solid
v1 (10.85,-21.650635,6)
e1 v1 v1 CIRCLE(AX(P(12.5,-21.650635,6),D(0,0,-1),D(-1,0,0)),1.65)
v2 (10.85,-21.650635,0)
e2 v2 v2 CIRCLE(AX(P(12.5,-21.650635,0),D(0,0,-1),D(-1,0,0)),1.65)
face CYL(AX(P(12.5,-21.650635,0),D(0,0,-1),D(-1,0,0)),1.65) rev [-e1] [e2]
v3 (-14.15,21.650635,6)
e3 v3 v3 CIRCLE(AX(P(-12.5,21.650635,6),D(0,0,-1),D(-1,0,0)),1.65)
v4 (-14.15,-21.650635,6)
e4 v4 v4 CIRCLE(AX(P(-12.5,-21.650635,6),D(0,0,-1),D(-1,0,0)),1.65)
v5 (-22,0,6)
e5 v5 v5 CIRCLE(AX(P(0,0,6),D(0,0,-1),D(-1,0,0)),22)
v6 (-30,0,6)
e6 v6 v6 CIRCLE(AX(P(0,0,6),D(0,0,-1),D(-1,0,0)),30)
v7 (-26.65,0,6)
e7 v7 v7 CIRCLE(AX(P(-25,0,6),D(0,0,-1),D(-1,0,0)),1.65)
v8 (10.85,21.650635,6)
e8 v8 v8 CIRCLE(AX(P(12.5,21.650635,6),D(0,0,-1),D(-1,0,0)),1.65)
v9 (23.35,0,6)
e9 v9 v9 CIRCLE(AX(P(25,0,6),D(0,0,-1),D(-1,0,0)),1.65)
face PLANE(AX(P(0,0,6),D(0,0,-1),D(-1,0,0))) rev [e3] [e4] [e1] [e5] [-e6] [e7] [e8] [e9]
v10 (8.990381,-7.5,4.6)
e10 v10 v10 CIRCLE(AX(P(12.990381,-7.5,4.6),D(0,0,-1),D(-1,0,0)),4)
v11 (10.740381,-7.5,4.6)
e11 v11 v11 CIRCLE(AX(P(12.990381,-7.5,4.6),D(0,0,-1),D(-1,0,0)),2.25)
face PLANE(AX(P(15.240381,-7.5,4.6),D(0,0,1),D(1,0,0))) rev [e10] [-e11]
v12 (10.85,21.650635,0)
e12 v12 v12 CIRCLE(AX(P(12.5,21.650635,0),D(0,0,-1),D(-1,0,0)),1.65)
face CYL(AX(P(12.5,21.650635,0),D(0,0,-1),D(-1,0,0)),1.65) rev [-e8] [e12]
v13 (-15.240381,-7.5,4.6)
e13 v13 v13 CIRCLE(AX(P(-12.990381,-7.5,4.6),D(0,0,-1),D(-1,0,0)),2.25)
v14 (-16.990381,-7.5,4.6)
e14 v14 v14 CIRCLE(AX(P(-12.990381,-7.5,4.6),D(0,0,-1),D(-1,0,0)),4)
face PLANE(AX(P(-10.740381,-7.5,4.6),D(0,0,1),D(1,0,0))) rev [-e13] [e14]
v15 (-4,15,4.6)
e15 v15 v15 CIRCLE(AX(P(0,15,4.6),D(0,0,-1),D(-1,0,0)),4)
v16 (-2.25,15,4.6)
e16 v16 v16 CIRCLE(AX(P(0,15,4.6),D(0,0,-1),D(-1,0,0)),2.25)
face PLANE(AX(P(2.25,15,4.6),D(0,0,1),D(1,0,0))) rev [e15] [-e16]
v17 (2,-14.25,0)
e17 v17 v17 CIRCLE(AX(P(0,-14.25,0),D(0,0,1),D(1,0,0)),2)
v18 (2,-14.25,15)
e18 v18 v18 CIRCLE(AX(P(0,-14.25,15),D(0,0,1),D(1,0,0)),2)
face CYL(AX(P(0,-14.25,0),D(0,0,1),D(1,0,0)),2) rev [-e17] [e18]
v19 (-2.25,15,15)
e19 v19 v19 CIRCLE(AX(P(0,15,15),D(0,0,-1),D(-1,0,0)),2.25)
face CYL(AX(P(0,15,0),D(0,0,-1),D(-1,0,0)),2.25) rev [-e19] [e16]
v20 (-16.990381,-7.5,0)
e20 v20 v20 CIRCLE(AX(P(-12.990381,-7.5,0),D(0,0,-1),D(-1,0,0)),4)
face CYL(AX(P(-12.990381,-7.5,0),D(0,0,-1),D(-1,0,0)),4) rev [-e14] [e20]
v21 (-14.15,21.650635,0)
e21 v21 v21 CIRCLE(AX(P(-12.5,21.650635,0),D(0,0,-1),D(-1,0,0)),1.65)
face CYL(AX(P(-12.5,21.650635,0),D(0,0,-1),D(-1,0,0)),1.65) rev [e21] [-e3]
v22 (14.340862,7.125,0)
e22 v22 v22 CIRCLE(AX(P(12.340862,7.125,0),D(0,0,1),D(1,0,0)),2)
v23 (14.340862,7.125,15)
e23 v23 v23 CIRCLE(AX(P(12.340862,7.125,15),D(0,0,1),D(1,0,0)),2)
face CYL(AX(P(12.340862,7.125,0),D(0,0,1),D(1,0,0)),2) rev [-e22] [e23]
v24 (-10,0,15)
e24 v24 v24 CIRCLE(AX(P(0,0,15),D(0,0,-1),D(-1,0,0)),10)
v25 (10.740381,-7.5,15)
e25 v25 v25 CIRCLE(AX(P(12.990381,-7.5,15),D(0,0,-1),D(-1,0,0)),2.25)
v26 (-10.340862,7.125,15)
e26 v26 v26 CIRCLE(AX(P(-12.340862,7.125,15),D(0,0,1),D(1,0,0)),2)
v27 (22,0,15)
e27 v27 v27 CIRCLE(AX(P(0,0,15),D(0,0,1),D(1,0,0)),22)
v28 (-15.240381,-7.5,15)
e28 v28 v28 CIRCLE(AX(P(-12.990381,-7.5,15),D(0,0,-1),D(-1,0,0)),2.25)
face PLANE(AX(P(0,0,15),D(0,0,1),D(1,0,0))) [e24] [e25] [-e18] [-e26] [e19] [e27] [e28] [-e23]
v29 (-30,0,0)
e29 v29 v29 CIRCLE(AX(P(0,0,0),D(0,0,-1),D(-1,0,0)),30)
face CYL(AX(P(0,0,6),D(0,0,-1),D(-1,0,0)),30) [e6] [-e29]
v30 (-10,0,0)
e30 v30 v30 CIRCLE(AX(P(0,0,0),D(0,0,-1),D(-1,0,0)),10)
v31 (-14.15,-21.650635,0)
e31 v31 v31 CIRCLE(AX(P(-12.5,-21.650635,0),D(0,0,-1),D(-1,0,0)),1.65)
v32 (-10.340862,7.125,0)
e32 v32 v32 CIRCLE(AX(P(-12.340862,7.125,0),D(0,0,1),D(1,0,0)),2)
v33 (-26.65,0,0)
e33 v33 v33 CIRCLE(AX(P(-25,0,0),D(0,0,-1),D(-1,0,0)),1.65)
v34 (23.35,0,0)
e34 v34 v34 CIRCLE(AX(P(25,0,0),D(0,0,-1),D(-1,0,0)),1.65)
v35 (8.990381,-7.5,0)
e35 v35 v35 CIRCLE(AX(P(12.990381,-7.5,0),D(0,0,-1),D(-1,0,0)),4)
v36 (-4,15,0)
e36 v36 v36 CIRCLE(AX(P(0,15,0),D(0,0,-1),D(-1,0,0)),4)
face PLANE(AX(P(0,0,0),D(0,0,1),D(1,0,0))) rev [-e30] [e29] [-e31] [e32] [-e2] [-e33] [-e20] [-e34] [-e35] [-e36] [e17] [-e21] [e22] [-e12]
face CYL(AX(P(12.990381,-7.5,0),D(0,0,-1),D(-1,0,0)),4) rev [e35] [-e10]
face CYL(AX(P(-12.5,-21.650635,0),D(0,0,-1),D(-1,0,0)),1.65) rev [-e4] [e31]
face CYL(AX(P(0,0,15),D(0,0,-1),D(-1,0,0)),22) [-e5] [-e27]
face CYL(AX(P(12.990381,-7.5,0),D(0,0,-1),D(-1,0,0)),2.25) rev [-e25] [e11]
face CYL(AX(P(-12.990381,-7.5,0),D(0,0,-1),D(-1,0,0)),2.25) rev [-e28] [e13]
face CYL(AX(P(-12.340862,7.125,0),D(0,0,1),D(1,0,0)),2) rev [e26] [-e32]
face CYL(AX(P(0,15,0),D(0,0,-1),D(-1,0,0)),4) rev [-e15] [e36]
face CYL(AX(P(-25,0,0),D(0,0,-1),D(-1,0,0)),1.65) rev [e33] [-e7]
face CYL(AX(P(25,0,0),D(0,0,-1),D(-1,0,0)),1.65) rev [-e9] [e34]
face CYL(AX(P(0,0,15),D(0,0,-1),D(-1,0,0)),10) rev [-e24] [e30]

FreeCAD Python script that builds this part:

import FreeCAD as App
import Part
import Sketcher
from FreeCAD import Vector

doc = App.newDocument("Part")
body = doc.addObject("PartDesign::Body", "Body")

# Sketch on XY plane
sketch1 = body.newObject("Sketcher::SketchObject", "Sketch")
sketch1.AttachmentSupport = (doc.getObject("XY_Plane"), [""])
sketch1.MapMode = "FlatFace"
sketch1.addGeometry(Part.Circle(Vector(0, 0, 0), Vector(0, 0, 1), 22), False)
sketch1.addConstraint([
    Sketcher.Constraint("Coincident", 0, 3, -1, 1),
    Sketcher.Constraint("Diameter", 0, 44.0),
])
pad1 = body.newObject("PartDesign::Pad", "Pad")
pad1.Profile = sketch1
pad1.Length = 15

# Sketch on XY plane
sketch2 = body.newObject("Sketcher::SketchObject", "Sketch001")
sketch2.AttachmentSupport = (doc.getObject("XY_Plane"), [""])
sketch2.MapMode = "FlatFace"
sketch2.addGeometry(Part.Circle(Vector(0, 0, 0), Vector(0, 0, 1), 30), False)
sketch2.addConstraint([
    Sketcher.Constraint("Coincident", 0, 3, -1, 1),
    Sketcher.Constraint("Diameter", 0, 60.0),
])
pad2 = body.newObject("PartDesign::Pad", "Pad001")
pad2.Profile = sketch2
pad2.Length = 6

# Sketch on XY plane
sketch3 = body.newObject("Sketcher::SketchObject", "Sketch002")
sketch3.AttachmentSupport = (doc.getObject("XY_Plane"), [""])
sketch3.MapMode = "FlatFace"
sketch3.AttachmentOffset = App.Placement(Vector(0, 0, 15), App.Rotation())
sketch3.addGeometry([
    Part.Circle(Vector(-12.3, 7.1, 0), Vector(0, 0, 1), 2),
    Part.Circle(Vector(12.3, 7.1, 0), Vector(0, 0, 1), 2),
    Part.Circle(Vector(0, -14.2, 0), Vector(0, 0, 1), 2),
], False)
sketch3.addConstraint([
    Sketcher.Constraint("Equal", 0, 1),
    Sketcher.Constraint("Equal", 1, 2),
    Sketcher.Constraint("Symmetric", 0, 3, 1, 3, -2),
    Sketcher.Constraint("PointOnObject", 2, 3, -2),
    Sketcher.Constraint("Diameter", 0, 4.0),
    Sketcher.Constraint("DistanceY", 2, 3, -1, 1, 14.25),
    Sketcher.Constraint("DistanceY", -1, 1, 0, 3, 7.125),
    Sketcher.Constraint("DistanceX", 0, 3, -1, 1, 12.340862),
])
pocket1 = body.newObject("PartDesign::Pocket", "Pocket")
pocket1.Profile = sketch3
pocket1.Type = "ThroughAll"
pocket1.Midplane = True

# Sketch on XY plane
sketch4 = body.newObject("Sketcher::SketchObject", "Sketch003")
sketch4.AttachmentSupport = (doc.getObject("XY_Plane"), [""])
sketch4.MapMode = "FlatFace"
sketch4.addGeometry(Part.Circle(Vector(0, 0, 0), Vector(0, 0, 1), 10), False)
sketch4.addConstraint([
    Sketcher.Constraint("Coincident", 0, 3, -1, 1),
    Sketcher.Constraint("Diameter", 0, 20.0),
])
pocket2 = body.newObject("PartDesign::Pocket", "Pocket001")
pocket2.Profile = sketch4
pocket2.Type = "ThroughAll"
pocket2.Reversed = True

# Sketch on XY plane
sketch5 = body.newObject("Sketcher::SketchObject", "Sketch004")
sketch5.AttachmentSupport = (doc.getObject("XY_Plane"), [""])
sketch5.MapMode = "FlatFace"
sketch5.addGeometry([
    Part.Circle(Vector(13, -7.5, 0), Vector(0, 0, 1), 2.2),
    Part.Circle(Vector(-13, -7.5, 0), Vector(0, 0, 1), 2.2),
    Part.Circle(Vector(0, 15, 0), Vector(0, 0, 1), 2.2),
], False)
sketch5.addConstraint([
    Sketcher.Constraint("Equal", 0, 1),
    Sketcher.Constraint("Equal", 1, 2),
    Sketcher.Constraint("Symmetric", 0, 3, 1, 3, -2),
    Sketcher.Constraint("PointOnObject", 2, 3, -2),
    Sketcher.Constraint("Diameter", 0, 4.5),
    Sketcher.Constraint("DistanceY", -1, 1, 2, 3, 15.0),
    Sketcher.Constraint("DistanceY", 0, 3, -1, 1, 7.5),
    Sketcher.Constraint("DistanceX", -1, 1, 0, 3, 12.990381),
])
doc.recompute()
hole = body.newObject("PartDesign::Hole", "Hole")
hole.Profile = sketch5
hole.ThreadType = "None"
hole.Diameter = 4.5
hole.DepthType = "ThroughAll"
hole.HoleCutType = "Counterbore"
hole.HoleCutDiameter = 8
hole.HoleCutDepth = 4.6
hole.Reversed = True

# Sketch on XY plane
sketch6 = body.newObject("Sketcher::SketchObject", "Sketch005")
sketch6.AttachmentSupport = (doc.getObject("XY_Plane"), [""])
sketch6.MapMode = "FlatFace"
sketch6.addGeometry([
    Part.Circle(Vector(25, 0, 0), Vector(0, 0, 1), 1.6),  # 0
    Part.Circle(Vector(12.5, 21.7, 0), Vector(0, 0, 1), 1.6),  # 1
    Part.Circle(Vector(-12.5, 21.7, 0), Vector(0, 0, 1), 1.6),  # 2
    Part.Circle(Vector(-25, 0, 0), Vector(0, 0, 1), 1.6),  # 3
    Part.Circle(Vector(-12.5, -21.7, 0), Vector(0, 0, 1), 1.6),  # 4
    Part.Circle(Vector(12.5, -21.7, 0), Vector(0, 0, 1), 1.6),  # 5
], False)
sketch6.addConstraint([
    Sketcher.Constraint("Equal", 0, 1),
    Sketcher.Constraint("Equal", 1, 2),
    Sketcher.Constraint("Equal", 2, 3),
    Sketcher.Constraint("Equal", 3, 4),
    Sketcher.Constraint("Equal", 4, 5),
    Sketcher.Constraint("Symmetric", 0, 3, 3, 3, -1, 1),
    Sketcher.Constraint("Symmetric", 1, 3, 4, 3, -1, 1),
    Sketcher.Constraint("Symmetric", 2, 3, 5, 3, -1, 1),
    Sketcher.Constraint("Symmetric", 1, 3, 2, 3, -2),
    Sketcher.Constraint("PointOnObject", 0, 3, -1),
    Sketcher.Constraint("Diameter", 0, 3.3),
    Sketcher.Constraint("DistanceX", -1, 1, 0, 3, 25.0),
    Sketcher.Constraint("DistanceX", 2, 3, 1, 3, 25.0),
    Sketcher.Constraint("DistanceY", 4, 3, 2, 3, 43.30127),
])
doc.recompute()
hole2 = body.newObject("PartDesign::Hole", "Hole001")
hole2.Profile = sketch6
hole2.ThreadType = "None"
hole2.Diameter = 3.3
hole2.DepthType = "ThroughAll"
hole2.Reversed = True

doc.recompute()
